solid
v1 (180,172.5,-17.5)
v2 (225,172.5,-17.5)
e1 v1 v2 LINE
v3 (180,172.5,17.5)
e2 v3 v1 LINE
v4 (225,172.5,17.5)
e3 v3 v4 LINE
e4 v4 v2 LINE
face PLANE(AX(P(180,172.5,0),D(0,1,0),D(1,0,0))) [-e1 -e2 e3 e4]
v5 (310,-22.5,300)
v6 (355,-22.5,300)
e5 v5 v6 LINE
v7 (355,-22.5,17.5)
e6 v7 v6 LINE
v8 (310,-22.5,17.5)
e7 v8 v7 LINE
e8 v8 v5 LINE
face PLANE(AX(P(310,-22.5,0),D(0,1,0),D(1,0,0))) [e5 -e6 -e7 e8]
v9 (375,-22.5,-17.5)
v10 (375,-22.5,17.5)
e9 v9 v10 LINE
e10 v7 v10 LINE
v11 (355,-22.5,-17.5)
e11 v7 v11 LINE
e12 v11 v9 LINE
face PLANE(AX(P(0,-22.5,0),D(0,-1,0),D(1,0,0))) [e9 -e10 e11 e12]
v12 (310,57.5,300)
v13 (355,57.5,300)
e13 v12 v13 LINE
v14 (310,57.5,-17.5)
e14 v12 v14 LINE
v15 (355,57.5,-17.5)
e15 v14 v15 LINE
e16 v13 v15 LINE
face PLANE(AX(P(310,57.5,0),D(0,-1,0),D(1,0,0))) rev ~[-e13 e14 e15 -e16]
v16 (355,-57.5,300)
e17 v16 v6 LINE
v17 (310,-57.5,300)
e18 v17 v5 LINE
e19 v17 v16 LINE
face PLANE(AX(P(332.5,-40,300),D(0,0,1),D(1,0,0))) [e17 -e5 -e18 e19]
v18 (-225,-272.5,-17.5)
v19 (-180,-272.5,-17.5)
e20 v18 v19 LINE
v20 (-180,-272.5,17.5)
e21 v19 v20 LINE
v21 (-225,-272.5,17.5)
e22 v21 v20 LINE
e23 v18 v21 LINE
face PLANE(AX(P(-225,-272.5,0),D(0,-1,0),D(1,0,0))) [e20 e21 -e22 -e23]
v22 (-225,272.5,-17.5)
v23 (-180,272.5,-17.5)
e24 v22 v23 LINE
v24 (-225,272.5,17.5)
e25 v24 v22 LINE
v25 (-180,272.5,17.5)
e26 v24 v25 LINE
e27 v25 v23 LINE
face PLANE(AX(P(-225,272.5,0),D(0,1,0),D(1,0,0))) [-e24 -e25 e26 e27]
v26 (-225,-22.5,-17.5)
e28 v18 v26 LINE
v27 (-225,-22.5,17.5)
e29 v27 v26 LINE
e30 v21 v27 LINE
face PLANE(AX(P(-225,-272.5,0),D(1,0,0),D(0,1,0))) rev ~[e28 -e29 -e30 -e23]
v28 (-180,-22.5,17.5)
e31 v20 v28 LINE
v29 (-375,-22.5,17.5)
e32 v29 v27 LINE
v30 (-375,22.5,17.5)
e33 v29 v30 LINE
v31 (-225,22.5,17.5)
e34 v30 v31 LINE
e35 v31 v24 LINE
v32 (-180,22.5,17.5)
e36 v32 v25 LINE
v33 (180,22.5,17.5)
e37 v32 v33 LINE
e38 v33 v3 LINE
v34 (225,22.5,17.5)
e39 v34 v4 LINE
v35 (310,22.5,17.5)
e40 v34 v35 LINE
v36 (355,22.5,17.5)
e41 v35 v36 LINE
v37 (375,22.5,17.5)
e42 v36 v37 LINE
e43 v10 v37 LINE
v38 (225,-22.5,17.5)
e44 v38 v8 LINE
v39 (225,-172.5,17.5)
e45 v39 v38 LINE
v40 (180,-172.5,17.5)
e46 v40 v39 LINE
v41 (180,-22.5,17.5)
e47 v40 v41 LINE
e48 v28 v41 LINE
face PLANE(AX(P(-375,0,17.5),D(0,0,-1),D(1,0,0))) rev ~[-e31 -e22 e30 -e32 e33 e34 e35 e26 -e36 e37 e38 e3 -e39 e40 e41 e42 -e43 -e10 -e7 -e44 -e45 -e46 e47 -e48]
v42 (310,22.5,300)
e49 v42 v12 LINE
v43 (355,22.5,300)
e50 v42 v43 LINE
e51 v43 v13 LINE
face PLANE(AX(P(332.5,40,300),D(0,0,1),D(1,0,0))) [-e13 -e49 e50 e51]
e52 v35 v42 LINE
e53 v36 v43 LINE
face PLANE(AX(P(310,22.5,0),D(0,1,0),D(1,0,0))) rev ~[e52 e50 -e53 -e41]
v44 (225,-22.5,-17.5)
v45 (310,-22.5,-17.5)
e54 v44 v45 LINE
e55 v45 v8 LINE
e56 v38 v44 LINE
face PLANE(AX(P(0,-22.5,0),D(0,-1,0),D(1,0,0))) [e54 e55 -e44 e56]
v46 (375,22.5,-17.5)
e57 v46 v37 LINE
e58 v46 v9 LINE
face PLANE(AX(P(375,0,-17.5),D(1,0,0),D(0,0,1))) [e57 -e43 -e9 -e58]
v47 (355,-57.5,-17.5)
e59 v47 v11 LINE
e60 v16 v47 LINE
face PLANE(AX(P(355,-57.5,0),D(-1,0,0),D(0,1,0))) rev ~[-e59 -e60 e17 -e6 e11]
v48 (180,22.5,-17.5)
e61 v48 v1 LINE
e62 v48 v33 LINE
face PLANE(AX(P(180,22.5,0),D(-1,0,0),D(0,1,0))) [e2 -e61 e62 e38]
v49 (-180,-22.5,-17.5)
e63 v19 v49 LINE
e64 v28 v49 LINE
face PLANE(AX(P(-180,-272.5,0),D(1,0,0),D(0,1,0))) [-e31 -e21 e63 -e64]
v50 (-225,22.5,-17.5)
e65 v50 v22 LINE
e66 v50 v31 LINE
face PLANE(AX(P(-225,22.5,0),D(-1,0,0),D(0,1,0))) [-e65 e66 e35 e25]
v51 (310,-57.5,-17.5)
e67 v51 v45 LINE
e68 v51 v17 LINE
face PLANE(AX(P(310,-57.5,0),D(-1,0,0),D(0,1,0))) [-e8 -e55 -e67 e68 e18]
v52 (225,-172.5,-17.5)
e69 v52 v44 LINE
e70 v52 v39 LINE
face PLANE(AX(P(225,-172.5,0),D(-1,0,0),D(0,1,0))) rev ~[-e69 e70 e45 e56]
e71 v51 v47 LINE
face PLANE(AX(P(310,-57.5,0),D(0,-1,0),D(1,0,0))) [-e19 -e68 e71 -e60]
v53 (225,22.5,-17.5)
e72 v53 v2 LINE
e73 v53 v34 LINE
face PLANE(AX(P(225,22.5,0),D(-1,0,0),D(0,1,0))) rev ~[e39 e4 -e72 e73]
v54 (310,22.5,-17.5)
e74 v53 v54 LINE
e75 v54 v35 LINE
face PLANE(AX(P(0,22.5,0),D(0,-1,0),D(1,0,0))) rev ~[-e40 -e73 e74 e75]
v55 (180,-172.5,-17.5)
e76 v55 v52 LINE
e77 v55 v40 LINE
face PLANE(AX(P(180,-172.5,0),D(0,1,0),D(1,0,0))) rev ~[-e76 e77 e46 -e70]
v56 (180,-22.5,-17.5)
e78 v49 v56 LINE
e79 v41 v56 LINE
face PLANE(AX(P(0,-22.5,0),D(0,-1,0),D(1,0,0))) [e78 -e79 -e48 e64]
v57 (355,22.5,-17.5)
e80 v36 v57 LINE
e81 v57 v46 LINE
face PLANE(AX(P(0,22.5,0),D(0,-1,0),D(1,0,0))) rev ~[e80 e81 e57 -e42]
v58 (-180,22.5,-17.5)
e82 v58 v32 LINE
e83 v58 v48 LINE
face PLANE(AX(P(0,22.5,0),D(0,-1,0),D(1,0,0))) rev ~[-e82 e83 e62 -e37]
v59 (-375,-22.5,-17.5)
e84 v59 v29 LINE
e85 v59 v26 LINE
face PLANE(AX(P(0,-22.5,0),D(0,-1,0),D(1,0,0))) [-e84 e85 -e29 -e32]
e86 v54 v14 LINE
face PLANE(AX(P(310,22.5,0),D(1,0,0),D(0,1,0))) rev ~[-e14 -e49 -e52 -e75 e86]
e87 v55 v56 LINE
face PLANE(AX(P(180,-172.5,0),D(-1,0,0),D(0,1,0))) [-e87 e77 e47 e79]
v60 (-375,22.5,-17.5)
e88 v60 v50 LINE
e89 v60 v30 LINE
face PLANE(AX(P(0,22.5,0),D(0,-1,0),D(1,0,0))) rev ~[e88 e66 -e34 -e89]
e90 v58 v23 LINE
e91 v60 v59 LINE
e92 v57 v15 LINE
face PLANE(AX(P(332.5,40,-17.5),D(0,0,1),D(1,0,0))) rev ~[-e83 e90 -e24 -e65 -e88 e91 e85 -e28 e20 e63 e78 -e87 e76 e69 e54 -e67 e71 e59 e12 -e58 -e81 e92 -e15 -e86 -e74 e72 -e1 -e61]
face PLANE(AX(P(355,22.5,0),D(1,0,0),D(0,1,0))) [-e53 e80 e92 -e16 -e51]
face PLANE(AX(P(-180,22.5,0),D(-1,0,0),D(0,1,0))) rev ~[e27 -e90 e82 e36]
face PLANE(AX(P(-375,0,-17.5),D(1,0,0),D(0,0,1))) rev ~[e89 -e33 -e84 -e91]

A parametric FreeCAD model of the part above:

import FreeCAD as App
import Part
import Sketcher
from FreeCAD import Vector


def add_polygon(sketch, points):
    """Adds a closed chain of lines whose ends are joined by coincident constraints."""
    first, n = sketch.GeometryCount, len(points)
    for a, b in zip(points, points[1:] + points[:1]):
        sketch.addGeometry(Part.LineSegment(App.Vector(*a, 0), App.Vector(*b, 0)), False)
    for i in range(n):
        sketch.addConstraint(Sketcher.Constraint("Coincident", first + i, 2, first + (i + 1) % n, 1))

doc = App.newDocument("Part")
body = doc.addObject("PartDesign::Body", "Body")

# Sketch on XZ plane
sketch1 = doc.addObject("Sketcher::SketchObject", "Sketch")
body.addObject(sketch1)
sketch1.AttachmentSupport = (doc.XZ_Plane, [""])
sketch1.MapMode = "FlatFace"
add_polygon(sketch1, [(-375, 17.5), (-375, -17.5), (375, -17.5), (375, 17.5)])  # lines 0-3
sketch1.addConstraint([
    Sketcher.Constraint("Vertical", 0),
    Sketcher.Constraint("Horizontal", 1),
    Sketcher.Constraint("Vertical", 2),
    Sketcher.Constraint("Horizontal", 3),
    Sketcher.Constraint("Symmetric", 0, 2, 2, 2, -1, 1),
    Sketcher.Constraint("DistanceX", 1, 1, 1, 2, 750.0),
    Sketcher.Constraint("DistanceY", 0, 2, 0, 1, 35.0),
])
pad1 = doc.addObject("PartDesign::Pad", "Pad")
body.addObject(pad1)
pad1.Profile = sketch1
pad1.Length = 45
pad1.Midplane = True

# Sketch on XY plane
sketch2 = doc.addObject("Sketcher::SketchObject", "Sketch001")
body.addObject(sketch2)
sketch2.AttachmentSupport = (doc.XY_Plane, [""])
sketch2.MapMode = "FlatFace"
add_polygon(sketch2, [(180, 172.5), (180, 22.5), (225, 22.5), (225, 172.5)])  # lines 0-3
add_polygon(sketch2, [(180, -22.5), (180, -172.5), (225, -172.5), (225, -22.5)])  # lines 4-7
add_polygon(sketch2, [(-225, 272.5), (-225, 22.5), (-180, 22.5), (-180, 272.5)])  # lines 8-11
add_polygon(sketch2, [(-225, -22.5), (-225, -272.5), (-180, -272.5), (-180, -22.5)])  # lines 12-15
sketch2.addConstraint([
    Sketcher.Constraint("Vertical", 0),
    Sketcher.Constraint("Horizontal", 1),
    Sketcher.Constraint("Vertical", 2),
    Sketcher.Constraint("Horizontal", 3),
    Sketcher.Constraint("Vertical", 4),
    Sketcher.Constraint("Horizontal", 5),
    Sketcher.Constraint("Vertical", 6),
    Sketcher.Constraint("Horizontal", 7),
    Sketcher.Constraint("Vertical", 8),
    Sketcher.Constraint("Horizontal", 9),
    Sketcher.Constraint("Vertical", 10),
    Sketcher.Constraint("Horizontal", 11),
    Sketcher.Constraint("Vertical", 12),
    Sketcher.Constraint("Horizontal", 13),
    Sketcher.Constraint("Vertical", 14),
    Sketcher.Constraint("Horizontal", 15),
    Sketcher.Constraint("Symmetric", 6, 2, 8, 2, -1, 1),
    Sketcher.Constraint("Symmetric", 0, 2, 14, 2, -1, 1),
    Sketcher.Constraint("Symmetric", 1, 2, 8, 2, -2),
    Sketcher.Constraint("Symmetric", 3, 2, 4, 2, -1),
    Sketcher.Constraint("Symmetric", 11, 2, 12, 2, -1),
    Sketcher.Constraint("Vertical", 10, 2, 13, 2),
    Sketcher.Constraint("DistanceX", 1, 1, 1, 2, 45.0),
    Sketcher.Constraint("DistanceY", 0, 2, 0, 1, 150.0),
    Sketcher.Constraint("DistanceY", 8, 2, 8, 1, 250.0),
    Sketcher.Constraint("DistanceX", -1, 1, 0, 2, 180.0),
    Sketcher.Constraint("DistanceY", 4, 2, 0, 2, 195.0),
])
pad2 = doc.addObject("PartDesign::Pad", "Pad001")
body.addObject(pad2)
pad2.Profile = sketch2
pad2.Length = 35
pad2.Midplane = True

# Sketch on XY plane
sketch3 = doc.addObject("Sketcher::SketchObject", "Sketch002")
body.addObject(sketch3)
sketch3.AttachmentSupport = (doc.XY_Plane, [""])
sketch3.MapMode = "FlatFace"
add_polygon(sketch3, [(310, 57.5), (310, 22.5), (355, 22.5), (355, 57.5)])  # lines 0-3
add_polygon(sketch3, [(310, -22.5), (310, -57.5), (355, -57.5), (355, -22.5)])  # lines 4-7
sketch3.addConstraint([
    Sketcher.Constraint("Vertical", 0),
    Sketcher.Constraint("Horizontal", 1),
    Sketcher.Constraint("Vertical", 2),
    Sketcher.Constraint("Horizontal", 3),
    Sketcher.Constraint("Vertical", 4),
    Sketcher.Constraint("Horizontal", 5),
    Sketcher.Constraint("Vertical", 6),
    Sketcher.Constraint("Horizontal", 7),
    Sketcher.Constraint("Symmetric", 3, 2, 4, 2, -1),
    Sketcher.Constraint("Symmetric", 1, 2, 6, 2, -1),
    Sketcher.Constraint("DistanceX", 1, 1, 1, 2, 45.0),
    Sketcher.Constraint("DistanceY", 0, 2, 0, 1, 35.0),
    Sketcher.Constraint("DistanceX", -1, 1, 0, 2, 310.0),
    Sketcher.Constraint("DistanceY", 4, 2, 0, 2, 80.0),
])
pad3 = doc.addObject("PartDesign::Pad", "Pad002")
body.addObject(pad3)
pad3.Profile = sketch3
pad3.Type = "TwoLengths"
pad3.Length = 300
pad3.Length2 = 17.5

doc.recompute()
